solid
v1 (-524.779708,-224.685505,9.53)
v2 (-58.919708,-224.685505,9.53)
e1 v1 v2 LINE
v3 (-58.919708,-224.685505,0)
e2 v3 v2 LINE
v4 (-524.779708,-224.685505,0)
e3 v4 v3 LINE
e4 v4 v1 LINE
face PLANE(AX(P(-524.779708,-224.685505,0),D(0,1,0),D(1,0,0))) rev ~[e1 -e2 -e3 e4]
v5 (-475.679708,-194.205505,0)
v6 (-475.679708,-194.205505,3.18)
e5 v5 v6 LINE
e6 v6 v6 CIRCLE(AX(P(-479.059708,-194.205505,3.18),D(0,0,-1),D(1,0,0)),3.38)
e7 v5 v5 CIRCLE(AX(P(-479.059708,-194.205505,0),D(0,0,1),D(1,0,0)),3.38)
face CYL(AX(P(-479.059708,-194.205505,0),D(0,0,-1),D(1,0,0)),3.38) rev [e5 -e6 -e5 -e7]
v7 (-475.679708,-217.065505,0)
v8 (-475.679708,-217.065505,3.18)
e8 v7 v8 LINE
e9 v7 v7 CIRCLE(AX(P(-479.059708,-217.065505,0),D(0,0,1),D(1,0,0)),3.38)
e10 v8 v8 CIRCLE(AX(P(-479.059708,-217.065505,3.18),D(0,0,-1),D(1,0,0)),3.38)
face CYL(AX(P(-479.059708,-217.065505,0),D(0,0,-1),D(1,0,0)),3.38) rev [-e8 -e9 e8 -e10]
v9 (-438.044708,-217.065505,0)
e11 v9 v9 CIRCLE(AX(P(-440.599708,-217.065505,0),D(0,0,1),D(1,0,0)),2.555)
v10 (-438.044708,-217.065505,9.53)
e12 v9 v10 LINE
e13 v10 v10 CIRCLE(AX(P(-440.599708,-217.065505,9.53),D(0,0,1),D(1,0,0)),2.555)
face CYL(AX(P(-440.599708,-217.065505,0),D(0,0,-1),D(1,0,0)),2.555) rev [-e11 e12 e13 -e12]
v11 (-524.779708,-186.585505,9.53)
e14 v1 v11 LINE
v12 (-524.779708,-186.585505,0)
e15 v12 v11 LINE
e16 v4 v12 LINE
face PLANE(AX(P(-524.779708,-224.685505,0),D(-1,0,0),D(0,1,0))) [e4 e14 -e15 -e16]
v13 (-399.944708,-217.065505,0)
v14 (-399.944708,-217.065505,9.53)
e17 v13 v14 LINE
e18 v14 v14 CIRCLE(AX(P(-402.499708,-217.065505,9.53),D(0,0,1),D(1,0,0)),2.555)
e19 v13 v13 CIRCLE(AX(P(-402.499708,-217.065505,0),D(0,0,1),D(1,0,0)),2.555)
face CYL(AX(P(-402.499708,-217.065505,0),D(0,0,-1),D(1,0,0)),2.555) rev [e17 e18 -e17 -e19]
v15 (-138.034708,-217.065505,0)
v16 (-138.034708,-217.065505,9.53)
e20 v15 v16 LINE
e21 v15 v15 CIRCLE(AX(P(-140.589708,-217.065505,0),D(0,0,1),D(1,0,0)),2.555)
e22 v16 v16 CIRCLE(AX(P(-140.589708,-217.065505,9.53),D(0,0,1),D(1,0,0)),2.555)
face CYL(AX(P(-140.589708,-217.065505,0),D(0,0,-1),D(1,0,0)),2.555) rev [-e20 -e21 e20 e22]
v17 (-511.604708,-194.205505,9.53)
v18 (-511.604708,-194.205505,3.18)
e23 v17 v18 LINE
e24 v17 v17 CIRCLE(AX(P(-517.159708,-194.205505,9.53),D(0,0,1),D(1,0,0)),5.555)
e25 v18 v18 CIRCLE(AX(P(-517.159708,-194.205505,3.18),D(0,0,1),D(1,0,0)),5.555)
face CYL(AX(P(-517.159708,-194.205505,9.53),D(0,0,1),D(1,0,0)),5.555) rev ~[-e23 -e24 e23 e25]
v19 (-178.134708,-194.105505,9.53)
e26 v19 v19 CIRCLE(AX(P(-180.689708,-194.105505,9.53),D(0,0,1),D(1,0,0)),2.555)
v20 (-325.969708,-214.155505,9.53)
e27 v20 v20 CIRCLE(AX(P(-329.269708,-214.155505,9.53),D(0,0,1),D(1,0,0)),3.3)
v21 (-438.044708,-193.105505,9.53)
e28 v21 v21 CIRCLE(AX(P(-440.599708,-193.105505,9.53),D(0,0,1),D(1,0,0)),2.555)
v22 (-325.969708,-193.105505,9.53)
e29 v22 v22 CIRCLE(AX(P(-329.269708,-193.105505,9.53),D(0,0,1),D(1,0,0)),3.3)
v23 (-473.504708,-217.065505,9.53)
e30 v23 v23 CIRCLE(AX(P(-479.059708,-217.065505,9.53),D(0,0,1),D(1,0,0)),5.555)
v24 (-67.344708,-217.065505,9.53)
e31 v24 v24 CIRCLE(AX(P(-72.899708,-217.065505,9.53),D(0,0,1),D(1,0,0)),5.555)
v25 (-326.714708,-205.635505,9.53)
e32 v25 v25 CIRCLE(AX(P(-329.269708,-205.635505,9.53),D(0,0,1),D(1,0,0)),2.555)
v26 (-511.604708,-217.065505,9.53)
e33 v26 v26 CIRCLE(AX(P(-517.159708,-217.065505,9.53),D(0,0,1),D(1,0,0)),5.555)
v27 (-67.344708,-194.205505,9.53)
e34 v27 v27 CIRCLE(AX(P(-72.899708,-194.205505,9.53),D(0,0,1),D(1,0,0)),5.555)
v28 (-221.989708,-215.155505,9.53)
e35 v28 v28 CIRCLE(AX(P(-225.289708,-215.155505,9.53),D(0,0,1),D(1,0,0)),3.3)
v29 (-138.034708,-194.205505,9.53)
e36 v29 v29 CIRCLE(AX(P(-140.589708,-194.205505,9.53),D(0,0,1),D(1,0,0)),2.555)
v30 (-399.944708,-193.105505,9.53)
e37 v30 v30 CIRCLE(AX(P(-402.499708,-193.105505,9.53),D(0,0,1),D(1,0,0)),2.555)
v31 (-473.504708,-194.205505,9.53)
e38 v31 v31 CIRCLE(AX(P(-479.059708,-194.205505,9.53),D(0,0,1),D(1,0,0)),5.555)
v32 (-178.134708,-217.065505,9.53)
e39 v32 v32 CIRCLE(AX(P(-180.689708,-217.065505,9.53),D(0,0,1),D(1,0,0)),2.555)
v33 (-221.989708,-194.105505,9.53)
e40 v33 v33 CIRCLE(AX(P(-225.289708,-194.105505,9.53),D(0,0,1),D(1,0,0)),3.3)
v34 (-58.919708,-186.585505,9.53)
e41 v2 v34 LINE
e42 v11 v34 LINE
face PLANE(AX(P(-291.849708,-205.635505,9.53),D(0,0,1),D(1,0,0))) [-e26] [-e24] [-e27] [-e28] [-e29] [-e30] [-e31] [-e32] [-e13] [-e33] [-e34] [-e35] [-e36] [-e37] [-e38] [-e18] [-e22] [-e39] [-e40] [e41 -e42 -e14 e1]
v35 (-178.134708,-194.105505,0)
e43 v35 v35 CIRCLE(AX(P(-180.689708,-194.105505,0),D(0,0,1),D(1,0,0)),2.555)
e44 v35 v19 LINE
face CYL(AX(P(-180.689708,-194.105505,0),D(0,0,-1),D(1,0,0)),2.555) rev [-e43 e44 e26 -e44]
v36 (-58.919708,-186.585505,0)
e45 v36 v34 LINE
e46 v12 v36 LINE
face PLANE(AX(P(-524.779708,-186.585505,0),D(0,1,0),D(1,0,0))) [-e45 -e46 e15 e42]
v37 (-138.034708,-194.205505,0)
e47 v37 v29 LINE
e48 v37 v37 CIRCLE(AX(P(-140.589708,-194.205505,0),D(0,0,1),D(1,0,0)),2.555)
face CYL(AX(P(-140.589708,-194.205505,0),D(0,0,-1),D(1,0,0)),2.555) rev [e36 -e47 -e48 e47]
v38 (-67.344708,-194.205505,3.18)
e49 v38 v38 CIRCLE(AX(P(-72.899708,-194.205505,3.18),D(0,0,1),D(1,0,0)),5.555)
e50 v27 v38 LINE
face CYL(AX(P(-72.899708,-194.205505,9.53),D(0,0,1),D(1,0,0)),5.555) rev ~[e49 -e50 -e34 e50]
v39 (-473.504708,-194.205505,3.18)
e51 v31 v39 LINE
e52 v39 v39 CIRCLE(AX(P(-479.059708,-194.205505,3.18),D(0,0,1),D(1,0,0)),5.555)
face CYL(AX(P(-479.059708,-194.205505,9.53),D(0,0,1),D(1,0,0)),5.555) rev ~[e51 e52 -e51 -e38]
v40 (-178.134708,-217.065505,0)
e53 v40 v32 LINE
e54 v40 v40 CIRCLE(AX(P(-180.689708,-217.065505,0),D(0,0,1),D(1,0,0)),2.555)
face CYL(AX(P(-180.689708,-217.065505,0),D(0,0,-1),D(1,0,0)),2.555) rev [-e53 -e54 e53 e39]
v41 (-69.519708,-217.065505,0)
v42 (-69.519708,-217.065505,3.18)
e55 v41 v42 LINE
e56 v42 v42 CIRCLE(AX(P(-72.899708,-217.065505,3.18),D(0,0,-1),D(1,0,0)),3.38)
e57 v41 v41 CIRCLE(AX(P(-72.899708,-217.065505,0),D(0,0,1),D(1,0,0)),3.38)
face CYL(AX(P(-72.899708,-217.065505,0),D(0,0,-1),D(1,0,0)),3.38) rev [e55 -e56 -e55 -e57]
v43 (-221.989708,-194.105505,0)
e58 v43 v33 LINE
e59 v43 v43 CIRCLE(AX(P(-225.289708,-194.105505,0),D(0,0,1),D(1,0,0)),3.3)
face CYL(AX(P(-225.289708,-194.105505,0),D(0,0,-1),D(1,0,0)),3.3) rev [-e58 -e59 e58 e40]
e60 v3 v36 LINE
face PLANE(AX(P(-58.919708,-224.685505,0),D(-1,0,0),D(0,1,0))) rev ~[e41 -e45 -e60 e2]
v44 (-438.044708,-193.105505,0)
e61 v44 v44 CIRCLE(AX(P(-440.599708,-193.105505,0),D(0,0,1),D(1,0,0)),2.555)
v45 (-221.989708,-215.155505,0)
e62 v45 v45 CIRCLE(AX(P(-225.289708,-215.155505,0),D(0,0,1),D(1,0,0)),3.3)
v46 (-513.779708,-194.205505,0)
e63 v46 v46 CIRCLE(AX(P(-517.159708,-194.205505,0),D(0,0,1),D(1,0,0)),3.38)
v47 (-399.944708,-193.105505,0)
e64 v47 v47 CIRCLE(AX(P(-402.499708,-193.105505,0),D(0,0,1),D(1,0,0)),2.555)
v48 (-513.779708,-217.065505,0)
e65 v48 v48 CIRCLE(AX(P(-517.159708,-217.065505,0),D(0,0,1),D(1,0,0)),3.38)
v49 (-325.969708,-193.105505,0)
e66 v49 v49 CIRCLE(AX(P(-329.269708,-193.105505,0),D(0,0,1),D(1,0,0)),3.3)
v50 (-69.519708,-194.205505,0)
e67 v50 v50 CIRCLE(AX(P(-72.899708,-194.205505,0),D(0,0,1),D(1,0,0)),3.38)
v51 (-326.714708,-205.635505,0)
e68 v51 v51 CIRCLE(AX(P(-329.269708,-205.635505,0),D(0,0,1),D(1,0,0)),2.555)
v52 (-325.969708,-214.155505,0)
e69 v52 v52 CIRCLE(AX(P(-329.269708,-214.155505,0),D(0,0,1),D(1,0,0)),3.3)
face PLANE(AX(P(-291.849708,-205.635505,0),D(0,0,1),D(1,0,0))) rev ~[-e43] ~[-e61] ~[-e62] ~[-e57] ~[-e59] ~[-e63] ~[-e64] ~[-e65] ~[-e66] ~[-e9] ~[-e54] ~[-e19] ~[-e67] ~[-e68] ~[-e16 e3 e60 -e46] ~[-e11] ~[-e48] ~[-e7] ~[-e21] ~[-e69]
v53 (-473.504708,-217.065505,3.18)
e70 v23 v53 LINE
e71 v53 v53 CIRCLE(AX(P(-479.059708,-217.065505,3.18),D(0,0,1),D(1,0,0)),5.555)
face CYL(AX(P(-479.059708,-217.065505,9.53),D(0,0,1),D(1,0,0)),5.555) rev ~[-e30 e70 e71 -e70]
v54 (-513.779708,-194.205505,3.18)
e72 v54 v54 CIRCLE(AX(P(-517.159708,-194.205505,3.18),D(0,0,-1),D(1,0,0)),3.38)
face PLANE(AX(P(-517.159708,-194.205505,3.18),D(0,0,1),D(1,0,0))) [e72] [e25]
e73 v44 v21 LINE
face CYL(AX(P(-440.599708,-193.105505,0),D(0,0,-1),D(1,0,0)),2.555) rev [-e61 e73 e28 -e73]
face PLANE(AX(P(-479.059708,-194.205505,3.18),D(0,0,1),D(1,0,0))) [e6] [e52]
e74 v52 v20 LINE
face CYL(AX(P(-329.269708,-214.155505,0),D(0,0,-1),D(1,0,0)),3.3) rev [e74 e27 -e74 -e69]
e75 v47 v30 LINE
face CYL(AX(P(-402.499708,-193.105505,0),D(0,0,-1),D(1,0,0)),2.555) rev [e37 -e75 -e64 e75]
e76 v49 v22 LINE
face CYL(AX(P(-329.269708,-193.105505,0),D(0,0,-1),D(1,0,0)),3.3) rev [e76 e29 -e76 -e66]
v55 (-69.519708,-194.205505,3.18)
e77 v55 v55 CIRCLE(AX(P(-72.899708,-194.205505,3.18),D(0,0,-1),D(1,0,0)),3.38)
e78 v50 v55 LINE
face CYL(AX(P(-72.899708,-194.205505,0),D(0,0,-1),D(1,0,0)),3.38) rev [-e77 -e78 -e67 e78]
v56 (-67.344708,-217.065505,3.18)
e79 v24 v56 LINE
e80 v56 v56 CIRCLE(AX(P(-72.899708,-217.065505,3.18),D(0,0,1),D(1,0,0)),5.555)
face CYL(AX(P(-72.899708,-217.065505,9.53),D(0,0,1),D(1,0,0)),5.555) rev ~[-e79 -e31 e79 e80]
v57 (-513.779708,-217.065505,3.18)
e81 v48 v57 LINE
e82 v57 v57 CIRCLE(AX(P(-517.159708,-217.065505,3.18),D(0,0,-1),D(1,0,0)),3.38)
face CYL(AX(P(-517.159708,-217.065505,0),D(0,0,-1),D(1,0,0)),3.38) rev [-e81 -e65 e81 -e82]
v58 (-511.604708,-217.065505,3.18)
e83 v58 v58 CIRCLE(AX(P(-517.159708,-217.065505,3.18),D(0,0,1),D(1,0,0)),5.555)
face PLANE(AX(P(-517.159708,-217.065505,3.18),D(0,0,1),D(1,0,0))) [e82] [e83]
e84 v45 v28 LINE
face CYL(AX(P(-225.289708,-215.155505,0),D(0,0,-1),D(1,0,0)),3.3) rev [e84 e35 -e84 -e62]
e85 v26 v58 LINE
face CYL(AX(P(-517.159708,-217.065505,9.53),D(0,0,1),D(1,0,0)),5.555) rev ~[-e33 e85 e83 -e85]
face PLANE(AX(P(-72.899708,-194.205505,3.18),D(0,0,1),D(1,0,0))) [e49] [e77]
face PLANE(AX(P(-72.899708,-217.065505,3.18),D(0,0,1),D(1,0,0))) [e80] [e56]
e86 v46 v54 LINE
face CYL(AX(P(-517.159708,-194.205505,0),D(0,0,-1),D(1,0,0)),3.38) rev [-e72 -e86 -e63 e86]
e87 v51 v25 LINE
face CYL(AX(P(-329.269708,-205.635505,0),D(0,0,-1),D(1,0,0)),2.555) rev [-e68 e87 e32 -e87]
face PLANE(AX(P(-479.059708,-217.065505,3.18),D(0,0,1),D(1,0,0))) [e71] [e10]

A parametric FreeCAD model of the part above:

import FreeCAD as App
import Part
import Sketcher
from FreeCAD import Vector
Q = App.Units.Quantity


def add_polygon(sketch, points):
    """Adds a closed chain of lines whose ends are joined by coincident constraints."""
    first, n = sketch.GeometryCount, len(points)
    for a, b in zip(points, points[1:] + points[:1]):
        sketch.addGeometry(Part.LineSegment(App.Vector(*a, 0), App.Vector(*b, 0)), False)
    for i in range(n):
        sketch.addConstraint(Sketcher.Constraint("Coincident", first + i, 2, first + (i + 1) % n, 1))

doc = App.newDocument("Part")
body = doc.addObject("PartDesign::Body", "Body")

sketch1 = body.newObject("Sketcher::SketchObject", "Sketch")
sketch1.AttachmentSupport = (doc.getObject("XY_Plane"), [""])
sketch1.MapMode = "FlatFace"
add_polygon(sketch1, [(-524.8, -186.6), (-524.8, -224.7), (-58.9, -224.7), (-58.9, -186.6)])
sketch1.addGeometry(Part.Circle(Vector(-517.2, -217.1, 0), Vector(0, 0, 1), 3.4), False)
sketch1.addGeometry(Part.Circle(Vector(-479.1, -217.1, 0), Vector(0, 0, 1), 3.4), False)
sketch1.addGeometry(Part.Circle(Vector(-440.6, -217.1, 0), Vector(0, 0, 1), 2.6), False)
sketch1.addGeometry(Part.Circle(Vector(-402.5, -217.1, 0), Vector(0, 0, 1), 2.6), False)
sketch1.addGeometry(Part.Circle(Vector(-329.3, -214.2, 0), Vector(0, 0, 1), 3.3), False)
sketch1.addGeometry(Part.Circle(Vector(-329.3, -205.6, 0), Vector(0, 0, 1), 2.6), False)
sketch1.addGeometry(Part.Circle(Vector(-225.3, -215.2, 0), Vector(0, 0, 1), 3.3), False)
sketch1.addGeometry(Part.Circle(Vector(-180.7, -217.1, 0), Vector(0, 0, 1), 2.6), False)
sketch1.addGeometry(Part.Circle(Vector(-140.6, -217.1, 0), Vector(0, 0, 1), 2.6), False)
sketch1.addGeometry(Part.Circle(Vector(-72.9, -217.1, 0), Vector(0, 0, 1), 3.4), False)
sketch1.addGeometry(Part.Circle(Vector(-517.2, -194.2, 0), Vector(0, 0, 1), 3.4), False)
sketch1.addGeometry(Part.Circle(Vector(-479.1, -194.2, 0), Vector(0, 0, 1), 3.4), False)
sketch1.addGeometry(Part.Circle(Vector(-440.6, -193.1, 0), Vector(0, 0, 1), 2.6), False)
sketch1.addGeometry(Part.Circle(Vector(-402.5, -193.1, 0), Vector(0, 0, 1), 2.6), False)
sketch1.addGeometry(Part.Circle(Vector(-329.3, -193.1, 0), Vector(0, 0, 1), 3.3), False)
sketch1.addGeometry(Part.Circle(Vector(-225.3, -194.1, 0), Vector(0, 0, 1), 3.3), False)
sketch1.addGeometry(Part.Circle(Vector(-180.7, -194.1, 0), Vector(0, 0, 1), 2.6), False)
sketch1.addGeometry(Part.Circle(Vector(-140.6, -194.2, 0), Vector(0, 0, 1), 2.6), False)
sketch1.addGeometry(Part.Circle(Vector(-72.9, -194.2, 0), Vector(0, 0, 1), 3.4), False)
sketch1.addConstraint([
    Sketcher.Constraint("Vertical", 0),
    Sketcher.Constraint("Horizontal", 1),
    Sketcher.Constraint("Vertical", 2),
    Sketcher.Constraint("Horizontal", 3),
    Sketcher.Constraint("Equal", 4, 5),
    Sketcher.Constraint("Equal", 6, 7),
    Sketcher.Constraint("Equal", 7, 9),
    Sketcher.Constraint("Equal", 8, 10),
    Sketcher.Constraint("Equal", 9, 11),
    Sketcher.Constraint("Equal", 11, 12),
    Sketcher.Constraint("Equal", 5, 13),
    Sketcher.Constraint("Equal", 13, 14),
    Sketcher.Constraint("Equal", 14, 15),
    Sketcher.Constraint("Equal", 12, 16),
    Sketcher.Constraint("Equal", 16, 17),
    Sketcher.Constraint("Equal", 10, 18),
    Sketcher.Constraint("Equal", 18, 19),
    Sketcher.Constraint("Equal", 17, 20),
    Sketcher.Constraint("Equal", 20, 21),
    Sketcher.Constraint("Equal", 15, 22),
    Sketcher.Constraint("Horizontal", 4, 3, 5, 3),
    Sketcher.Constraint("Horizontal", 5, 3, 6, 3),
    Sketcher.Constraint("Horizontal", 6, 3, 7, 3),
    Sketcher.Constraint("Horizontal", 7, 3, 11, 3),
    Sketcher.Constraint("Horizontal", 11, 3, 12, 3),
    Sketcher.Constraint("Horizontal", 12, 3, 13, 3),
    Sketcher.Constraint("Horizontal", 14, 3, 15, 3),
    Sketcher.Constraint("Horizontal", 16, 3, 17, 3),
    Sketcher.Constraint("Horizontal", 17, 3, 18, 3),
    Sketcher.Constraint("Horizontal", 19, 3, 20, 3),
    Sketcher.Constraint("Horizontal", 15, 3, 21, 3),
    Sketcher.Constraint("Horizontal", 21, 3, 22, 3),
    Sketcher.Constraint("Vertical", 8, 3, 9, 3),
    Sketcher.Constraint("Vertical", 4, 3, 14, 3),
    Sketcher.Constraint("Vertical", 5, 3, 15, 3),
    Sketcher.Constraint("Vertical", 6, 3, 16, 3),
    Sketcher.Constraint("Vertical", 7, 3, 17, 3),
    Sketcher.Constraint("Vertical", 9, 3, 18, 3),
    Sketcher.Constraint("Vertical", 10, 3, 19, 3),
    Sketcher.Constraint("Vertical", 11, 3, 20, 3),
    Sketcher.Constraint("Vertical", 12, 3, 21, 3),
    Sketcher.Constraint("Vertical", 13, 3, 22, 3),
    Sketcher.Constraint("DistanceY", 0, 2, 0, 1, Q("1.5 in")),
    Sketcher.Constraint("DistanceX", 4, 3, 5, 3, Q("1.5 in")),
    Sketcher.Constraint("DistanceX", 6, 3, 7, 3, Q("1.5 in")),
    Sketcher.Constraint("DistanceY", 4, 3, 14, 3, Q("0.9 in")),
    Sketcher.Constraint("DistanceX", 0, 2, 4, 3, Q("0.3 in")),
    Sketcher.Constraint("DistanceY", 0, 2, 4, 3, Q("0.3 in")),
    Sketcher.Constraint("Diameter", 4, Q("6.76 mm")),
    Sketcher.Constraint("Diameter", 6, Q("5.11 mm")),
    Sketcher.Constraint("Diameter", 8, Q("6.6 mm")),
    Sketcher.Constraint("DistanceY", 7, 3, 9, 3, Q("0.45 in")),
    Sketcher.Constraint("DistanceX", 1, 1, 1, 2, Q("465.86 mm")),
    Sketcher.Constraint("DistanceX", 5, 3, 6, 3, Q("38.46 mm")),
    Sketcher.Constraint("DistanceX", 7, 3, 8, 3, Q("73.23 mm")),
    Sketcher.Constraint("DistanceY", 7, 3, 8, 3, Q("2.91 mm")),
    Sketcher.Constraint("DistanceX", 8, 3, 10, 3, Q("103.98 mm")),
    Sketcher.Constraint("DistanceY", 10, 3, 8, 3, Q("1 mm")),
    Sketcher.Constraint("DistanceX", 10, 3, 11, 3, Q("44.6 mm")),
    Sketcher.Constraint("DistanceX", 11, 3, 12, 3, Q("40.1 mm")),
    Sketcher.Constraint("DistanceX", 12, 3, 13, 3, Q("67.69 mm")),
    Sketcher.Constraint("DistanceY", 6, 3, 16, 3, Q("23.96 mm")),
    Sketcher.Constraint("DistanceY", 10, 3, 19, 3, Q("21.05 mm")),
    Sketcher.Constraint("DistanceX", 4, 3, -1, 1, Q("517.159708 mm")),
    Sketcher.Constraint("DistanceY", 4, 3, -1, 1, Q("217.065505 mm")),
])
pad1 = body.newObject("PartDesign::Pad", "Pad")
pad1.Profile = sketch1
pad1.Length = 9.53

sketch2 = body.newObject("Sketcher::SketchObject", "Sketch001")
sketch2.AttachmentSupport = (doc.getObject("XY_Plane"), [""])
sketch2.MapMode = "FlatFace"
sketch2.AttachmentOffset = App.Placement(Vector(0, 0, 9.53), App.Rotation())
sketch2.addGeometry([
    Part.Circle(Vector(-517, -194, 0), Vector(0, 0, 1), 6),
    Part.Circle(Vector(-517, -217, 0), Vector(0, 0, 1), 6),
    Part.Circle(Vector(-479, -194, 0), Vector(0, 0, 1), 6),
    Part.Circle(Vector(-479, -217, 0), Vector(0, 0, 1), 6),
    Part.Circle(Vector(-73, -194, 0), Vector(0, 0, 1), 6),
    Part.Circle(Vector(-73, -217, 0), Vector(0, 0, 1), 6),
], False)
sketch2.addConstraint([
    Sketcher.Constraint("Equal", 0, 1),
    Sketcher.Constraint("Equal", 1, 2),
    Sketcher.Constraint("Equal", 2, 3),
    Sketcher.Constraint("Equal", 3, 4),
    Sketcher.Constraint("Equal", 4, 5),
    Sketcher.Constraint("Horizontal", 0, 3, 2, 3),
    Sketcher.Constraint("Horizontal", 1, 3, 3, 3),
    Sketcher.Constraint("Horizontal", 2, 3, 4, 3),
    Sketcher.Constraint("Horizontal", 3, 3, 5, 3),
    Sketcher.Constraint("Vertical", 0, 3, 1, 3),
    Sketcher.Constraint("Vertical", 2, 3, 3, 3),
    Sketcher.Constraint("Vertical", 4, 3, 5, 3),
    Sketcher.Constraint("DistanceY", 1, 3, 0, 3, Q("0.9 in")),
    Sketcher.Constraint("DistanceX", 0, 3, 2, 3, Q("1.5 in")),
    Sketcher.Constraint("Diameter", 0, Q("11.11 mm")),
    Sketcher.Constraint("DistanceX", 2, 3, 4, 3, Q("406.16 mm")),
    Sketcher.Constraint("DistanceX", 0, 3, -1, 1, Q("517.159708 mm")),
    Sketcher.Constraint("DistanceY", 0, 3, -1, 1, Q("194.205505 mm")),
])
pocket1 = body.newObject("PartDesign::Pocket", "Pocket")
pocket1.Profile = sketch2
pocket1.Length = Q("0.25 in")

doc.recompute()
